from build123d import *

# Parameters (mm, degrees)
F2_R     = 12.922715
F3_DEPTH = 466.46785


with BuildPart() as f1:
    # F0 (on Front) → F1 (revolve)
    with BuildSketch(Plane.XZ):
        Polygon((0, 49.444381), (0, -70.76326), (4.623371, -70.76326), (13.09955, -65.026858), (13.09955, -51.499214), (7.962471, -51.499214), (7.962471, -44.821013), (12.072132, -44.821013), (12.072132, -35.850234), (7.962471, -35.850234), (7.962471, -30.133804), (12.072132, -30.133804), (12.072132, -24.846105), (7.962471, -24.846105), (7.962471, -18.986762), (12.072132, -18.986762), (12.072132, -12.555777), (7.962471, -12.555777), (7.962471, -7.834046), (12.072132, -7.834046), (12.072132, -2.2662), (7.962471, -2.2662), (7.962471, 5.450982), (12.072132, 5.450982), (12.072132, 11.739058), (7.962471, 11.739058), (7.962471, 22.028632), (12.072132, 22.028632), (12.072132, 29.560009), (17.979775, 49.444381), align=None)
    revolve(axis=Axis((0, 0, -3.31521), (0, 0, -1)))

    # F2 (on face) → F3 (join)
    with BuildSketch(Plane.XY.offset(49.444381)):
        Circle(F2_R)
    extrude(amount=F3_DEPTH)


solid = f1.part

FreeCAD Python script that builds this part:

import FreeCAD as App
import Part
import Sketcher
from FreeCAD import Vector

doc = App.newDocument("Part")
params = doc.addObject("Spreadsheet::Sheet", "Params")
for row, (alias, value) in enumerate([
    ("revolution_angle", "360 deg"),
    ("pad1_length", "466.46785 mm"),
], start=1):
    params.set(f"A{row}", alias)
    params.set(f"B{row}", "=" + value)
    params.setAlias(f"B{row}", alias)

body = doc.addObject("PartDesign::Body", "Body")

sketch1 = doc.addObject("Sketcher::SketchObject", "Sketch")
body.addObject(sketch1)
sketch1.AttachmentSupport = (doc.XZ_Plane, [""])
sketch1.MapMode = "FlatFace"
sketch1.addGeometry([
    Part.LineSegment(Vector(0, 49.4, 0), Vector(0, -70.8, 0)),
    Part.LineSegment(Vector(0, -70.8, 0), Vector(4.6, -70.8, 0)),
    Part.LineSegment(Vector(4.6, -70.8, 0), Vector(13.1, -65, 0)),
    Part.LineSegment(Vector(13.1, -65, 0), Vector(13.1, -51.5, 0)),
    Part.LineSegment(Vector(13.1, -51.5, 0), Vector(8, -51.5, 0)),
    Part.LineSegment(Vector(8, -51.5, 0), Vector(8, -44.8, 0)),
    Part.LineSegment(Vector(8, -44.8, 0), Vector(12.1, -44.8, 0)),
    Part.LineSegment(Vector(12.1, -44.8, 0), Vector(12.1, -35.9, 0)),
    Part.LineSegment(Vector(12.1, -35.9, 0), Vector(8, -35.9, 0)),
    Part.LineSegment(Vector(8, -35.9, 0), Vector(8, -30.1, 0)),
    Part.LineSegment(Vector(8, -30.1, 0), Vector(12.1, -30.1, 0)),
    Part.LineSegment(Vector(12.1, -30.1, 0), Vector(12.1, -24.8, 0)),
    Part.LineSegment(Vector(12.1, -24.8, 0), Vector(8, -24.8, 0)),
    Part.LineSegment(Vector(8, -24.8, 0), Vector(8, -19, 0)),
    Part.LineSegment(Vector(8, -19, 0), Vector(12.1, -19, 0)),
    Part.LineSegment(Vector(12.1, -19, 0), Vector(12.1, -12.6, 0)),
    Part.LineSegment(Vector(12.1, -12.6, 0), Vector(8, -12.6, 0)),
    Part.LineSegment(Vector(8, -12.6, 0), Vector(8, -7.8, 0)),
    Part.LineSegment(Vector(8, -7.8, 0), Vector(12.1, -7.8, 0)),
    Part.LineSegment(Vector(12.1, -7.8, 0), Vector(12.1, -2.3, 0)),
    Part.LineSegment(Vector(12.1, -2.3, 0), Vector(8, -2.3, 0)),
    Part.LineSegment(Vector(8, -2.3, 0), Vector(8, 5.5, 0)),
    Part.LineSegment(Vector(8, 5.5, 0), Vector(12.1, 5.5, 0)),
    Part.LineSegment(Vector(12.1, 5.5, 0), Vector(12.1, 11.7, 0)),
    Part.LineSegment(Vector(12.1, 11.7, 0), Vector(8, 11.7, 0)),
    Part.LineSegment(Vector(8, 11.7, 0), Vector(8, 22, 0)),
    Part.LineSegment(Vector(8, 22, 0), Vector(12.1, 22, 0)),
    Part.LineSegment(Vector(12.1, 22, 0), Vector(12.1, 29.6, 0)),
    Part.LineSegment(Vector(12.1, 29.6, 0), Vector(18, 49.4, 0)),
    Part.LineSegment(Vector(18, 49.4, 0), Vector(0, 49.4, 0)),
], False)
sketch1.addConstraint([
    Sketcher.Constraint("Coincident", 0, 2, 1, 1),
    Sketcher.Constraint("Coincident", 1, 2, 2, 1),
    Sketcher.Constraint("Coincident", 2, 2, 3, 1),
    Sketcher.Constraint("Coincident", 3, 2, 4, 1),
    Sketcher.Constraint("Coincident", 4, 2, 5, 1),
    Sketcher.Constraint("Coincident", 5, 2, 6, 1),
    Sketcher.Constraint("Coincident", 6, 2, 7, 1),
    Sketcher.Constraint("Coincident", 7, 2, 8, 1),
    Sketcher.Constraint("Coincident", 8, 2, 9, 1),
    Sketcher.Constraint("Coincident", 9, 2, 10, 1),
    Sketcher.Constraint("Coincident", 10, 2, 11, 1),
    Sketcher.Constraint("Coincident", 11, 2, 12, 1),
    Sketcher.Constraint("Coincident", 12, 2, 13, 1),
    Sketcher.Constraint("Coincident", 13, 2, 14, 1),
    Sketcher.Constraint("Coincident", 14, 2, 15, 1),
    Sketcher.Constraint("Coincident", 15, 2, 16, 1),
    Sketcher.Constraint("Coincident", 16, 2, 17, 1),
    Sketcher.Constraint("Coincident", 17, 2, 18, 1),
    Sketcher.Constraint("Coincident", 18, 2, 19, 1),
    Sketcher.Constraint("Coincident", 19, 2, 20, 1),
    Sketcher.Constraint("Coincident", 20, 2, 21, 1),
    Sketcher.Constraint("Coincident", 21, 2, 22, 1),
    Sketcher.Constraint("Coincident", 22, 2, 23, 1),
    Sketcher.Constraint("Coincident", 23, 2, 24, 1),
    Sketcher.Constraint("Coincident", 24, 2, 25, 1),
    Sketcher.Constraint("Coincident", 25, 2, 26, 1),
    Sketcher.Constraint("Coincident", 26, 2, 27, 1),
    Sketcher.Constraint("Coincident", 27, 2, 28, 1),
    Sketcher.Constraint("Coincident", 28, 2, 29, 1),
    Sketcher.Constraint("Coincident", 29, 2, 0, 1),
    Sketcher.Constraint("Vertical", 0),
    Sketcher.Constraint("Horizontal", 1),
    Sketcher.Constraint("Vertical", 3),
    Sketcher.Constraint("Horizontal", 4),
    Sketcher.Constraint("Vertical", 5),
    Sketcher.Constraint("Horizontal", 6),
    Sketcher.Constraint("Vertical", 7),
    Sketcher.Constraint("Horizontal", 8),
    Sketcher.Constraint("Vertical", 9),
    Sketcher.Constraint("Horizontal", 10),
    Sketcher.Constraint("Vertical", 11),
    Sketcher.Constraint("Horizontal", 12),
    Sketcher.Constraint("Vertical", 13),
    Sketcher.Constraint("Horizontal", 14),
    Sketcher.Constraint("Vertical", 15),
    Sketcher.Constraint("Horizontal", 16),
    Sketcher.Constraint("Vertical", 17),
    Sketcher.Constraint("Horizontal", 18),
    Sketcher.Constraint("Vertical", 19),
    Sketcher.Constraint("Horizontal", 20),
    Sketcher.Constraint("Vertical", 21),
    Sketcher.Constraint("Horizontal", 22),
    Sketcher.Constraint("Vertical", 23),
    Sketcher.Constraint("Horizontal", 24),
    Sketcher.Constraint("Vertical", 25),
    Sketcher.Constraint("Horizontal", 26),
    Sketcher.Constraint("Vertical", 27),
    Sketcher.Constraint("Horizontal", 29),
    Sketcher.Constraint("PointOnObject", 0, 2, -2),
    Sketcher.Constraint("Vertical", 5, 2, 8, 2),
    Sketcher.Constraint("Vertical", 7, 2, 10, 2),
    Sketcher.Constraint("Vertical", 9, 2, 12, 2),
    Sketcher.Constraint("Vertical", 11, 2, 14, 2),
    Sketcher.Constraint("Vertical", 13, 2, 16, 2),
    Sketcher.Constraint("Vertical", 15, 2, 18, 2),
    Sketcher.Constraint("Vertical", 17, 2, 20, 2),
    Sketcher.Constraint("Vertical", 19, 2, 22, 2),
    Sketcher.Constraint("Vertical", 21, 2, 24, 2),
    Sketcher.Constraint("Vertical", 23, 2, 26, 2),
    Sketcher.Constraint("DistanceY", 5, 1, 5, 2, 6.678201),
    Sketcher.Constraint("DistanceY", 11, 1, 11, 2, 5.287699),
    Sketcher.Constraint("DistanceX", 1, 1, 1, 2, 4.623371),
    Sketcher.Constraint("DistanceX", 4, 2, 4, 1, 5.137079),
    Sketcher.Constraint("DistanceX", 6, 1, 6, 2, 4.109661),
    Sketcher.Constraint("DistanceY", 0, 2, 0, 1, 120.207641),
    Sketcher.Constraint("DistanceY", 7, 1, 7, 2, 8.970779),
    Sketcher.Constraint("DistanceY", 9, 1, 9, 2, 5.71643),
    Sketcher.Constraint("DistanceY", 17, 1, 17, 2, 4.721731),
    Sketcher.Constraint("DistanceY", 21, 1, 21, 2, 7.717182),
    Sketcher.Constraint("DistanceY", 19, 2, -1, 1, 2.2662),
    Sketcher.Constraint("DistanceY", 1, 2, 2, 2, 5.736402),
    Sketcher.Constraint("DistanceX", 1, 2, 4, 2, 3.3391),
    Sketcher.Constraint("DistanceX", 29, 2, 29, 1, 17.979775),
    Sketcher.Constraint("DistanceY", 3, 1, 3, 2, 13.527644),
    Sketcher.Constraint("DistanceY", 13, 1, 13, 2, 5.859343),
    Sketcher.Constraint("DistanceY", 15, 1, 15, 2, 6.430985),
    Sketcher.Constraint("DistanceY", 19, 1, 19, 2, 5.567846),
    Sketcher.Constraint("DistanceY", 23, 1, 23, 2, 6.288076),
    Sketcher.Constraint("DistanceY", 25, 1, 25, 2, 10.289574),
    Sketcher.Constraint("DistanceY", 27, 1, 27, 2, 7.531377),
])
revolution = doc.addObject("PartDesign::Revolution", "Revolution")
body.addObject(revolution)
revolution.Profile = sketch1
revolution.ReferenceAxis = (sketch1, ["V_Axis"])
revolution.setExpression("Angle", "Params.revolution_angle")

sketch2 = doc.addObject("Sketcher::SketchObject", "Sketch001")
body.addObject(sketch2)
sketch2.AttachmentSupport = (doc.XY_Plane, [""])
sketch2.MapMode = "FlatFace"
sketch2.AttachmentOffset = App.Placement(Vector(0, 0, 49.444381), App.Rotation())
sketch2.addGeometry(Part.Circle(Vector(0, 0, 0), Vector(0, 0, 1), 13), False)
sketch2.addConstraint([
    Sketcher.Constraint("Coincident", 0, 3, -1, 1),
    Sketcher.Constraint("Diameter", 0, 25.84543),
])
pad1 = doc.addObject("PartDesign::Pad", "Pad")
body.addObject(pad1)
pad1.Profile = sketch2
pad1.setExpression("Length", "Params.pad1_length")

doc.recompute()
